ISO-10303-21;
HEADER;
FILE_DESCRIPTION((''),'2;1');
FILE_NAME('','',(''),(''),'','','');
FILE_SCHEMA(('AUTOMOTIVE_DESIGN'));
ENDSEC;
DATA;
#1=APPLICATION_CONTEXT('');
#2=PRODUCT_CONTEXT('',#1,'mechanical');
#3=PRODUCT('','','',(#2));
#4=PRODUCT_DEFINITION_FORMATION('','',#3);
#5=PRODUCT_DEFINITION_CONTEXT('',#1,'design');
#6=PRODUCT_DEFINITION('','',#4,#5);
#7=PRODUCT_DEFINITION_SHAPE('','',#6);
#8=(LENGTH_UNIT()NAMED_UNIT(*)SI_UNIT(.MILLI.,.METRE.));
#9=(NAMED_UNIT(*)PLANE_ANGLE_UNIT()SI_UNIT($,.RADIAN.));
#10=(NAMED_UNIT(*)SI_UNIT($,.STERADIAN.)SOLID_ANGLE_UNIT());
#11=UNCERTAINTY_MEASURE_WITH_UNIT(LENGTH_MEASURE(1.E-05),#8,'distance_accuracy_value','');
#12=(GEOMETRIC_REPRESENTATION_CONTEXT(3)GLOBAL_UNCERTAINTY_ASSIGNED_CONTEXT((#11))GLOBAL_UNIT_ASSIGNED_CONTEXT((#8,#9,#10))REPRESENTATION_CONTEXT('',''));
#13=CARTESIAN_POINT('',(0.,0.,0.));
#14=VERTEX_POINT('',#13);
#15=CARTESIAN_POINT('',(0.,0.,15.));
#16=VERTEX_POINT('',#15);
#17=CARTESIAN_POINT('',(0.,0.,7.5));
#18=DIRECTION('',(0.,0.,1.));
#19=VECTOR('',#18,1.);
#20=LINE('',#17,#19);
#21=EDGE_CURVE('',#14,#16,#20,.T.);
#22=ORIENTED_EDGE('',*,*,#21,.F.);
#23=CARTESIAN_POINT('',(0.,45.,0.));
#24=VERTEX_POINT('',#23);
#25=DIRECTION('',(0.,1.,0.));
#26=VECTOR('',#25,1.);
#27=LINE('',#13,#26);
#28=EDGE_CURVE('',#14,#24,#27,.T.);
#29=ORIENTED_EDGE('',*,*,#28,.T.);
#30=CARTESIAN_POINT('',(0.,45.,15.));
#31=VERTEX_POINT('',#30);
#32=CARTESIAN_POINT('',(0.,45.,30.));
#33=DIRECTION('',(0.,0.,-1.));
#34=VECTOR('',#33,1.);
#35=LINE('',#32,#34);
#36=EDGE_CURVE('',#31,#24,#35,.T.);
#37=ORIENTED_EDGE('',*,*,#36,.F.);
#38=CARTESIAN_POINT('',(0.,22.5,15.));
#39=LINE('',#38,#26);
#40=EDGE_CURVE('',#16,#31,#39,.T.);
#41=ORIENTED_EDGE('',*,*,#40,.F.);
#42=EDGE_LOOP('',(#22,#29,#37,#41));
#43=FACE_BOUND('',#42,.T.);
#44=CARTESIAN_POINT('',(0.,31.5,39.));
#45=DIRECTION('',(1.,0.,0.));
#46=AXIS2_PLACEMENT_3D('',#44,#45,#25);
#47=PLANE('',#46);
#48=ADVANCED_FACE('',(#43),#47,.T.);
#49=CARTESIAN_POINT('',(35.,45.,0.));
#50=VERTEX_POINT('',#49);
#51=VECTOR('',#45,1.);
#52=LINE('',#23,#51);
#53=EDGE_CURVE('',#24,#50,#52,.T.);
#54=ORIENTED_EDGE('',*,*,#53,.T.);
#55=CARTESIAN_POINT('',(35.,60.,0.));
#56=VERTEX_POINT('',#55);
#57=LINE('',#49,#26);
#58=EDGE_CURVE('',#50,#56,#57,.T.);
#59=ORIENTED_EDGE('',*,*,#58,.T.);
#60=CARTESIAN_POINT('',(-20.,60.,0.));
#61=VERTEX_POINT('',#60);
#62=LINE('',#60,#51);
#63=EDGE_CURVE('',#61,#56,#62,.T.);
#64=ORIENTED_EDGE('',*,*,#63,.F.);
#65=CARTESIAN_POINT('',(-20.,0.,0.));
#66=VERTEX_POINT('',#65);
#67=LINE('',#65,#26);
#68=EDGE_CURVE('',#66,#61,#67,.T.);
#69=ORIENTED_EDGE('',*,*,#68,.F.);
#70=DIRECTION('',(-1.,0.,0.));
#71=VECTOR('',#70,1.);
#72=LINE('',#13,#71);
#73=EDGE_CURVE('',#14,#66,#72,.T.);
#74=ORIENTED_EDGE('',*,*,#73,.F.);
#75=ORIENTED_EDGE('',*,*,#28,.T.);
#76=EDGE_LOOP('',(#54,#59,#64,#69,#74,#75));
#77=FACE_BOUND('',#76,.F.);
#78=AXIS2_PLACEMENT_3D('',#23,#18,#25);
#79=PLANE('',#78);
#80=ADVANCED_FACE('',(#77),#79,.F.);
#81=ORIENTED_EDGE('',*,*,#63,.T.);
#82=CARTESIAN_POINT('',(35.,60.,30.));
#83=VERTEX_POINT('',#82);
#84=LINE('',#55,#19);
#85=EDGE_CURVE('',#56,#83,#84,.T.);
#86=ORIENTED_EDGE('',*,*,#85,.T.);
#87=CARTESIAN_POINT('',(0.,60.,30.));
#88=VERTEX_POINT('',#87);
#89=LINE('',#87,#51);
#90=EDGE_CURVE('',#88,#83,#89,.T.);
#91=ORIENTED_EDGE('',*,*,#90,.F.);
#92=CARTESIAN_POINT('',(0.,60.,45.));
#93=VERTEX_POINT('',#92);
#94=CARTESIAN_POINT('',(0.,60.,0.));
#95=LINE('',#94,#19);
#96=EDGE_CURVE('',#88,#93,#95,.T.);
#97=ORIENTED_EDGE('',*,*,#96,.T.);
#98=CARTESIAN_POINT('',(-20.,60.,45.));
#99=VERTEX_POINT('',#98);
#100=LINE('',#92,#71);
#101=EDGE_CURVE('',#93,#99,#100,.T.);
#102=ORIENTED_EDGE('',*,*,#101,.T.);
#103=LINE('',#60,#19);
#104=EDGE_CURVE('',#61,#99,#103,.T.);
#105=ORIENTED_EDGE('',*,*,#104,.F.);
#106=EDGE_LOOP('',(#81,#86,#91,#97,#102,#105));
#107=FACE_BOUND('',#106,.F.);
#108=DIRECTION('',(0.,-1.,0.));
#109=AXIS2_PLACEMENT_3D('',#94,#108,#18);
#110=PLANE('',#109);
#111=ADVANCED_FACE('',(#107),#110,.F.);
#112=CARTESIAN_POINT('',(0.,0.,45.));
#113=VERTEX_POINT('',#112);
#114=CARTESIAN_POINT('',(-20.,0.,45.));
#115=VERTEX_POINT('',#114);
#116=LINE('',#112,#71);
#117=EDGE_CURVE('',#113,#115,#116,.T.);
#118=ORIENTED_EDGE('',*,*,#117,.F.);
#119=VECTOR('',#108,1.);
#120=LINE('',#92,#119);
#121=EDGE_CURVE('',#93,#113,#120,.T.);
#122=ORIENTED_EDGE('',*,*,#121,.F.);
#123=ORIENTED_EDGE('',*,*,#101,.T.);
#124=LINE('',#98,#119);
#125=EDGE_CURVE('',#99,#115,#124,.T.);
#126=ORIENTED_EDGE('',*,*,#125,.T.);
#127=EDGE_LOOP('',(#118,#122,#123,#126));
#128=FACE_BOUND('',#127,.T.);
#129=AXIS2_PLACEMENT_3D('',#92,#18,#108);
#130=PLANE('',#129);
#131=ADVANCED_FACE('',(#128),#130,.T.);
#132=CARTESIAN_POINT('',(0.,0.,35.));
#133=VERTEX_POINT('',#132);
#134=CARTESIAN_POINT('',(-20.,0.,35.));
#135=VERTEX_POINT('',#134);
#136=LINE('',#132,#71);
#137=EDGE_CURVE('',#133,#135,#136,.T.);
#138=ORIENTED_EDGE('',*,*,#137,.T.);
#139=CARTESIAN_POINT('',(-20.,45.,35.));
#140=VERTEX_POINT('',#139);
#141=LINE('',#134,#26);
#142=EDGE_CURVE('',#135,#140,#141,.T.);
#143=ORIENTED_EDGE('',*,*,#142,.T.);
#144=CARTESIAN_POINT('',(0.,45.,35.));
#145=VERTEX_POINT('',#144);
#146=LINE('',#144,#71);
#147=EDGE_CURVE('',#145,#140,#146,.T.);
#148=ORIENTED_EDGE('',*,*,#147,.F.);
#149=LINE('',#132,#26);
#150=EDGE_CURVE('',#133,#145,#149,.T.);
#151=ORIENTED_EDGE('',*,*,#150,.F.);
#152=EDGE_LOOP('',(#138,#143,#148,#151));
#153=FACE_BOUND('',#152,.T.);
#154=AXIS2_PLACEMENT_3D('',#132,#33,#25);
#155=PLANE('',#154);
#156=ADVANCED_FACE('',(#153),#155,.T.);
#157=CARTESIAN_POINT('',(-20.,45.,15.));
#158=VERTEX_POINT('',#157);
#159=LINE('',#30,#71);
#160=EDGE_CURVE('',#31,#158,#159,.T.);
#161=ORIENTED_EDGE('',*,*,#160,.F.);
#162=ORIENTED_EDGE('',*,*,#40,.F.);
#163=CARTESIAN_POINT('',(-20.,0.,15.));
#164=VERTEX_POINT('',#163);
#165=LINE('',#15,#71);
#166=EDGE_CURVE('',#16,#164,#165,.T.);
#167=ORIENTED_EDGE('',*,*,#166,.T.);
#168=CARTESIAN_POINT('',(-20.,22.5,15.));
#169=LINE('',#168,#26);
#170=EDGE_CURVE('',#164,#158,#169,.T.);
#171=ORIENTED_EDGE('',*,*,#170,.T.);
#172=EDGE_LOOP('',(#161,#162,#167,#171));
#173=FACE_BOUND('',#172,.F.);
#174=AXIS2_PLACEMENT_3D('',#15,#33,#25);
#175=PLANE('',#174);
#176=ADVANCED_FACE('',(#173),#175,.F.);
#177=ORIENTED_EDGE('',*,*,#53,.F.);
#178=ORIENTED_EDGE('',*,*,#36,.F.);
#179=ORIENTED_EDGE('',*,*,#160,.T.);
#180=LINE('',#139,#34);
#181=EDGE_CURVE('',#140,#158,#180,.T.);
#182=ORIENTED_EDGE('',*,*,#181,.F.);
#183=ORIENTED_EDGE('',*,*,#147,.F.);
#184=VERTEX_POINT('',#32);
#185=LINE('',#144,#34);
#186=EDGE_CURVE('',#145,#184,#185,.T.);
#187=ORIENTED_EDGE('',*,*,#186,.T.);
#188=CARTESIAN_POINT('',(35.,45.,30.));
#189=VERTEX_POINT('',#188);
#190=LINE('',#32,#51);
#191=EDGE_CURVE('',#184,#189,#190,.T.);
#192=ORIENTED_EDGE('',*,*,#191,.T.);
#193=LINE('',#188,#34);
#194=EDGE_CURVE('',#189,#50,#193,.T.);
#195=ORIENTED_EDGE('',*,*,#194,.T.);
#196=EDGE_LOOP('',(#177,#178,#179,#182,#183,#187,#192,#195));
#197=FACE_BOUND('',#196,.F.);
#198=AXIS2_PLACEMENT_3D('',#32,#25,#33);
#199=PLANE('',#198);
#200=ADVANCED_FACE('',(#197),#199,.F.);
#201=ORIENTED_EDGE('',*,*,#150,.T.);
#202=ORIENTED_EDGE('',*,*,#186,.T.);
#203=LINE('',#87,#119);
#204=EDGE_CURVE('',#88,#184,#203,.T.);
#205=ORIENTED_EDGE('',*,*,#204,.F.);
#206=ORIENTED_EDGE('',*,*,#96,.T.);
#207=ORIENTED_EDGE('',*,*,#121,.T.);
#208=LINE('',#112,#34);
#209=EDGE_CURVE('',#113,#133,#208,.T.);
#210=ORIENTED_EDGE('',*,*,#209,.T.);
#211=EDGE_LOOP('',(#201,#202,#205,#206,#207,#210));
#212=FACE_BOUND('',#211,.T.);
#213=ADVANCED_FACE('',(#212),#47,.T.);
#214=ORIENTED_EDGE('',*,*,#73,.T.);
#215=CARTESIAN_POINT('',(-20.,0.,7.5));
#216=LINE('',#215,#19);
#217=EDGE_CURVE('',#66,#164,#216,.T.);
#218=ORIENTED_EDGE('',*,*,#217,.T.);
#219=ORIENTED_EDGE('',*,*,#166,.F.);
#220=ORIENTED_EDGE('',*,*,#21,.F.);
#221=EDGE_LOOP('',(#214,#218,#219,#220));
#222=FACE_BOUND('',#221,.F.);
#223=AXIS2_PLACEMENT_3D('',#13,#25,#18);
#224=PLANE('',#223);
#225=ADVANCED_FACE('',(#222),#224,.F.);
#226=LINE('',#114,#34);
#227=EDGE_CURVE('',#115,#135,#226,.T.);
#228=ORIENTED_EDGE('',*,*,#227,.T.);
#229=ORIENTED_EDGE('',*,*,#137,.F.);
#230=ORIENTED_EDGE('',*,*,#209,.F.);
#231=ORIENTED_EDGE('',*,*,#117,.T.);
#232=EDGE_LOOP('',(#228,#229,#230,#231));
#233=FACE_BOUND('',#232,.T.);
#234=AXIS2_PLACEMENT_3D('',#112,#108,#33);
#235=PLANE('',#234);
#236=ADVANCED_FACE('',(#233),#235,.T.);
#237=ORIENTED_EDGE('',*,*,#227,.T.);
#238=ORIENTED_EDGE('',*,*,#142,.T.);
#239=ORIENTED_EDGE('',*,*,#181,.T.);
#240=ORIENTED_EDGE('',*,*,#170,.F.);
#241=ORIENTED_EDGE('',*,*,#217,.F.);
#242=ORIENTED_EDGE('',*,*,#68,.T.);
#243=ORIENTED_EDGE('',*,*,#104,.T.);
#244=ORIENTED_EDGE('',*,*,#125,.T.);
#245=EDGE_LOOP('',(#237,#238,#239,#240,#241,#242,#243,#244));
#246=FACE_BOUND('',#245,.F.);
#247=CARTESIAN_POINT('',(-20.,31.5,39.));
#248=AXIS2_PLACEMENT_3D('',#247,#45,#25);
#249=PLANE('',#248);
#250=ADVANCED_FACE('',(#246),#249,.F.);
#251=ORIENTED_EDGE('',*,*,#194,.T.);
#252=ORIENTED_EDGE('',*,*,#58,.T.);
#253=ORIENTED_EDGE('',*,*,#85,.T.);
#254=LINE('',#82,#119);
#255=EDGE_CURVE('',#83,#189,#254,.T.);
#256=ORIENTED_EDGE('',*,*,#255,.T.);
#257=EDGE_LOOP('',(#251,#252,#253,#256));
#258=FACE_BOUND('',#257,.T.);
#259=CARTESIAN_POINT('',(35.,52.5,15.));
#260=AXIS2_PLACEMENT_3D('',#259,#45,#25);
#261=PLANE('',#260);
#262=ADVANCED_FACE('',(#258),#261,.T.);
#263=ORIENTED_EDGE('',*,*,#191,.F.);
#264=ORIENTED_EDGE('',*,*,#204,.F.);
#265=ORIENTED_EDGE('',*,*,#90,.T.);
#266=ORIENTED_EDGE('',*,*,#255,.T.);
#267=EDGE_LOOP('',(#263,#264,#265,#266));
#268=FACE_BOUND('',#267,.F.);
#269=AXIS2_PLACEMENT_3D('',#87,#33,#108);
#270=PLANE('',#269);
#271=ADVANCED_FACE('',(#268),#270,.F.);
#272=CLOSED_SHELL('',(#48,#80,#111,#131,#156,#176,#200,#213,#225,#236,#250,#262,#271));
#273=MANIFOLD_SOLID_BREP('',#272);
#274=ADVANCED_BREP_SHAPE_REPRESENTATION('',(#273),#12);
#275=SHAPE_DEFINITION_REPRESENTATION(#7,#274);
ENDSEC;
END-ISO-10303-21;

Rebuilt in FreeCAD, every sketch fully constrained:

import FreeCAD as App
import Part
import Sketcher

V = App.Vector


def add_polygon(sketch, points):
    """Adds a closed chain of lines whose ends are joined by coincident constraints."""
    first, n = sketch.GeometryCount, len(points)
    for a, b in zip(points, points[1:] + points[:1]):
        sketch.addGeometry(Part.LineSegment(App.Vector(*a, 0), App.Vector(*b, 0)), False)
    for i in range(n):
        sketch.addConstraint(Sketcher.Constraint("Coincident", first + i, 2, first + (i + 1) % n, 1))

doc = App.newDocument("Part")
body = doc.addObject("PartDesign::Body", "Body")

sketch1 = body.newObject("Sketcher::SketchObject", "Sketch")
sketch1.AttachmentSupport = (doc.getObject("YZ_Plane"), [""])
sketch1.MapMode = "FlatFace"
add_polygon(sketch1, [(45, 35), (45, 15), (0, 15), (0, 0), (60, 0), (60, 45), (0, 45), (0, 35)])
sketch1.addConstraint([
    Sketcher.Constraint("Vertical", 0),
    Sketcher.Constraint("Horizontal", 1),
    Sketcher.Constraint("Vertical", 2),
    Sketcher.Constraint("Horizontal", 3),
    Sketcher.Constraint("Vertical", 4),
    Sketcher.Constraint("Horizontal", 5),
    Sketcher.Constraint("Vertical", 6),
    Sketcher.Constraint("Horizontal", 7),
    Sketcher.Constraint("Coincident", 2, 2, -1, 1),
    Sketcher.Constraint("PointOnObject", 5, 2, -2),
    Sketcher.Constraint("Equal", 7, 4),
    Sketcher.Constraint("DistanceX", 1, 2, 1, 1, 45.0),
    Sketcher.Constraint("DistanceX", 3, 1, 3, 2, 60.0),
    Sketcher.Constraint("DistanceY", 0, 2, 0, 1, 20.0),
    Sketcher.Constraint("DistanceY", 2, 2, 2, 1, 15.0),
])
pad1 = body.newObject("PartDesign::Pad", "Pad")
pad1.Profile = sketch1
pad1.Length = 20
pad1.Reversed = True

sketch2 = body.newObject("Sketcher::SketchObject", "Sketch001")
sketch2.AttachmentSupport = (doc.getObject("YZ_Plane"), [""])
sketch2.MapMode = "FlatFace"
add_polygon(sketch2, [(45, 0), (60, 0), (60, 30), (45, 30)])
sketch2.addConstraint([
    Sketcher.Constraint("Horizontal", 0),
    Sketcher.Constraint("Vertical", 1),
    Sketcher.Constraint("Horizontal", 2),
    Sketcher.Constraint("Vertical", 3),
    Sketcher.Constraint("PointOnObject", 0, 2, -1),
    Sketcher.Constraint("DistanceX", 0, 1, 0, 2, 15.0),
    Sketcher.Constraint("DistanceY", 1, 1, 1, 2, 30.0),
    Sketcher.Constraint("DistanceX", -1, 1, 0, 2, 60.0),
])
pad2 = body.newObject("PartDesign::Pad", "Pad001")
pad2.Profile = sketch2
pad2.Length = 35

doc.recompute()
